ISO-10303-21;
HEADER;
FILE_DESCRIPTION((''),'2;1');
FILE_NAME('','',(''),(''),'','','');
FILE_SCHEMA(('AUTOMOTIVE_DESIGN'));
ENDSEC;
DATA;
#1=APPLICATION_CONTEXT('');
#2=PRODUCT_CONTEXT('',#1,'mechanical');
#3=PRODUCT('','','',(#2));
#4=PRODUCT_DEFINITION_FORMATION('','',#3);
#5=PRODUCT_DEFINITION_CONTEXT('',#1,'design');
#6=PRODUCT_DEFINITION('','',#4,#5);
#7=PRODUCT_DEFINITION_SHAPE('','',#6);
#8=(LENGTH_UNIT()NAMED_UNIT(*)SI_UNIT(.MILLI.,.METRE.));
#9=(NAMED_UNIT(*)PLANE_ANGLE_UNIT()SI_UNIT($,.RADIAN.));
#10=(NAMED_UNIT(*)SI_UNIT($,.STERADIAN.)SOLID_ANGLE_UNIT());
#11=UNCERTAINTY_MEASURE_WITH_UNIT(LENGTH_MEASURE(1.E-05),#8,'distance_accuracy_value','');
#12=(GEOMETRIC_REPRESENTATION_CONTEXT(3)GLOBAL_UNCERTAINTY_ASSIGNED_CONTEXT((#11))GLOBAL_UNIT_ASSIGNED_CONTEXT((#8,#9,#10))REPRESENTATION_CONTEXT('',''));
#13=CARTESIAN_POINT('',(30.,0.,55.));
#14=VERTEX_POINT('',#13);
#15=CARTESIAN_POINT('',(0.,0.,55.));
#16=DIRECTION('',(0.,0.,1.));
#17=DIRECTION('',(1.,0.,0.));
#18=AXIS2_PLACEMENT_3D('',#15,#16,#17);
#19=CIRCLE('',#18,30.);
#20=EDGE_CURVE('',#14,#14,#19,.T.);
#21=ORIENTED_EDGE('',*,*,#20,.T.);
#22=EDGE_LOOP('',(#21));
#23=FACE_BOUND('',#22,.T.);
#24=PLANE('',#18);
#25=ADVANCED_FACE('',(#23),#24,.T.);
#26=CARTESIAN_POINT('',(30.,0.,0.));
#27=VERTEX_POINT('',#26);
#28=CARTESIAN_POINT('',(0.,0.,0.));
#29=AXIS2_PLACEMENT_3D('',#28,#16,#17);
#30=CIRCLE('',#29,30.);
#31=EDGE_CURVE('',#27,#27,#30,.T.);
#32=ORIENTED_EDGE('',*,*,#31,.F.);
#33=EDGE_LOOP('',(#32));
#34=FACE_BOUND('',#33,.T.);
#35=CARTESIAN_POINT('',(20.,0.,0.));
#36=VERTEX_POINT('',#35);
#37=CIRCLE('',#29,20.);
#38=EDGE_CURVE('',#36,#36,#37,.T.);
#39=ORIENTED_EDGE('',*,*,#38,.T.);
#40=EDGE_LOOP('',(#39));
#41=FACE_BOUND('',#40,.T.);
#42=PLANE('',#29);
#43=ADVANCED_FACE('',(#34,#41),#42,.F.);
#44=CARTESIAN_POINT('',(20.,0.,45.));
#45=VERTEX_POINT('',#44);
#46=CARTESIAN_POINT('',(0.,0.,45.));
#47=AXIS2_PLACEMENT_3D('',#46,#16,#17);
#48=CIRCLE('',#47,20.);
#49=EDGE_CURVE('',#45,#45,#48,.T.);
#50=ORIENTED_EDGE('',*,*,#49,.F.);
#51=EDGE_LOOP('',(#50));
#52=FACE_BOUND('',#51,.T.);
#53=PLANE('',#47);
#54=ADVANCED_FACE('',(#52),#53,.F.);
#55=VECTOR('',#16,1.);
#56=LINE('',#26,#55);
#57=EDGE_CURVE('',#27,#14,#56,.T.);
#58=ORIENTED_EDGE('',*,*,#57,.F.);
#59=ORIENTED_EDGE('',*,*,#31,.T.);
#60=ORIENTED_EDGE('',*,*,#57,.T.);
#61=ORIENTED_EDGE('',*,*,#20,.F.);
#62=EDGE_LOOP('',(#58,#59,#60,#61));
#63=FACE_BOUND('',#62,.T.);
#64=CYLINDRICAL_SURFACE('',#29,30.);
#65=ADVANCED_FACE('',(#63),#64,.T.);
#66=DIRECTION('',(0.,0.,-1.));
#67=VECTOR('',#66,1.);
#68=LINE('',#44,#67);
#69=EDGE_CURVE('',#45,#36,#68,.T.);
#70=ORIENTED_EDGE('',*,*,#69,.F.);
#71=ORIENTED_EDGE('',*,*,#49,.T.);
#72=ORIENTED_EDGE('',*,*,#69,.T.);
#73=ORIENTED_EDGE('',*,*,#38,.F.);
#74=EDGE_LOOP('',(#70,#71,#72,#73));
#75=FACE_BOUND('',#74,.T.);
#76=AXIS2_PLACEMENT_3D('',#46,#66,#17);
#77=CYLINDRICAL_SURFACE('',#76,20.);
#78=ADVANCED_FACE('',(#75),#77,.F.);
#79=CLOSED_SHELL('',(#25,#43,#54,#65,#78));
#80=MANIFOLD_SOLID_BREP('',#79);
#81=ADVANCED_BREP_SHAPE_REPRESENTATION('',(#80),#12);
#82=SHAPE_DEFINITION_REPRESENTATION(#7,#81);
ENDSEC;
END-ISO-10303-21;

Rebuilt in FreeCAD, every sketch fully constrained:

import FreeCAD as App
import Part
import Sketcher

doc = App.newDocument("Part")
params = doc.addObject("Spreadsheet::Sheet", "Params")
for row, (alias, value) in enumerate([
    ("sketch1_width", "20 mm"),
    ("sketch1_width2", "10 mm"),
    ("sketch1_height", "45 mm"),
    ("revolution_angle", "360 deg"),
], start=1):
    params.set(f"A{row}", alias)
    params.set(f"B{row}", "=" + value)
    params.setAlias(f"B{row}", alias)

body = doc.addObject("PartDesign::Body", "Body")

sketch1 = doc.addObject("Sketcher::SketchObject", "Sketch")
body.addObject(sketch1)
sketch1.AttachmentSupport = (doc.XZ_Plane, [""])
sketch1.MapMode = "FlatFace"
sketch1.addGeometry([
    Part.LineSegment(App.Vector(0, 55, 0), App.Vector(0, 45, 0)),
    Part.LineSegment(App.Vector(0, 45, 0), App.Vector(20, 45, 0)),
    Part.LineSegment(App.Vector(20, 45, 0), App.Vector(20, 0, 0)),
    Part.LineSegment(App.Vector(20, 0, 0), App.Vector(30, 0, 0)),
    Part.LineSegment(App.Vector(30, 0, 0), App.Vector(30, 55, 0)),
    Part.LineSegment(App.Vector(30, 55, 0), App.Vector(0, 55, 0)),
], False)
sketch1.addConstraint([
    Sketcher.Constraint("Coincident", 0, 2, 1, 1),
    Sketcher.Constraint("Coincident", 1, 2, 2, 1),
    Sketcher.Constraint("Coincident", 2, 2, 3, 1),
    Sketcher.Constraint("Coincident", 3, 2, 4, 1),
    Sketcher.Constraint("Coincident", 4, 2, 5, 1),
    Sketcher.Constraint("Coincident", 5, 2, 0, 1),
    Sketcher.Constraint("Vertical", 0),
    Sketcher.Constraint("Horizontal", 1),
    Sketcher.Constraint("Vertical", 2),
    Sketcher.Constraint("Horizontal", 3),
    Sketcher.Constraint("Vertical", 4),
    Sketcher.Constraint("Horizontal", 5),
    Sketcher.Constraint("PointOnObject", 0, 2, -2),
    Sketcher.Constraint("PointOnObject", 2, 2, -1),
    Sketcher.Constraint("Equal", 3, 0),
    Sketcher.Constraint("DistanceX", 1, 1, 1, 2, 20.0),
    Sketcher.Constraint("DistanceX", 3, 1, 3, 2, 10.0),
    Sketcher.Constraint("DistanceY", 2, 2, 2, 1, 45.0),
])
sketch1.setExpression("Constraints[15]", "Params.sketch1_width")
sketch1.setExpression("Constraints[16]", "Params.sketch1_width2")
sketch1.setExpression("Constraints[17]", "Params.sketch1_height")
revolution = doc.addObject("PartDesign::Revolution", "Revolution")
body.addObject(revolution)
revolution.Profile = sketch1
revolution.ReferenceAxis = (sketch1, ["V_Axis"])
revolution.setExpression("Angle", "Params.revolution_angle")

doc.recompute()
